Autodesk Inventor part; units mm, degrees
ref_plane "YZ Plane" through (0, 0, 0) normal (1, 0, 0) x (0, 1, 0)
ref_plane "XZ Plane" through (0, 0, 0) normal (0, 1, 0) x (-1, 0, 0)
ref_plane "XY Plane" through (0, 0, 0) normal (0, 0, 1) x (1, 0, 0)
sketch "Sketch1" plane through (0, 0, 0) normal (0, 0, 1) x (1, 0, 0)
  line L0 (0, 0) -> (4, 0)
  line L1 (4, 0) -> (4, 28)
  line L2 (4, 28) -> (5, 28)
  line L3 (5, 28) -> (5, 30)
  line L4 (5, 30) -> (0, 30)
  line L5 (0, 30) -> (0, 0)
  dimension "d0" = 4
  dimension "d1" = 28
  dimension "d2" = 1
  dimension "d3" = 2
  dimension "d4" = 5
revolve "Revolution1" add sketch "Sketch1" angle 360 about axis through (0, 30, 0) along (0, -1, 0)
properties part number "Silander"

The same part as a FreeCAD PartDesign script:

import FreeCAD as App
import Part
import Sketcher
from FreeCAD import Vector
Q = App.Units.Quantity

doc = App.newDocument("Part")
body = doc.addObject("PartDesign::Body", "Body")

# Sketch on XY plane
sketch1 = doc.addObject("Sketcher::SketchObject", "Sketch")
body.addObject(sketch1)
sketch1.AttachmentSupport = (doc.XY_Plane, [""])
sketch1.MapMode = "FlatFace"
sketch1.addGeometry([
    Part.LineSegment(Vector(0, 30, 0), Vector(0, 0, 0)),  # 0
    Part.LineSegment(Vector(0, 0, 0), Vector(4, 0, 0)),  # 1
    Part.LineSegment(Vector(4, 0, 0), Vector(4, 28, 0)),  # 2
    Part.LineSegment(Vector(4, 28, 0), Vector(5, 28, 0)),  # 3
    Part.LineSegment(Vector(5, 28, 0), Vector(5, 30, 0)),  # 4
    Part.LineSegment(Vector(5, 30, 0), Vector(0, 30, 0)),  # 5
], False)
sketch1.addConstraint([
    Sketcher.Constraint("Coincident", 0, 2, 1, 1),
    Sketcher.Constraint("Coincident", 1, 2, 2, 1),
    Sketcher.Constraint("Coincident", 2, 2, 3, 1),
    Sketcher.Constraint("Coincident", 3, 2, 4, 1),
    Sketcher.Constraint("Coincident", 4, 2, 5, 1),
    Sketcher.Constraint("Coincident", 5, 2, 0, 1),
    Sketcher.Constraint("Vertical", 0),
    Sketcher.Constraint("Horizontal", 1),
    Sketcher.Constraint("Vertical", 2),
    Sketcher.Constraint("Horizontal", 3),
    Sketcher.Constraint("Vertical", 4),
    Sketcher.Constraint("Horizontal", 5),
    Sketcher.Constraint("Coincident", 0, 2, -1, 1),
    Sketcher.Constraint("DistanceX", 1, 1, 1, 2, Q("4 mm")),
    Sketcher.Constraint("DistanceX", 3, 1, 3, 2, Q("1 mm")),
    Sketcher.Constraint("DistanceY", 2, 1, 2, 2, Q("28 mm")),
    Sketcher.Constraint("DistanceY", 4, 1, 4, 2, Q("2 mm")),
])
revolution = doc.addObject("PartDesign::Revolution", "Revolution")
body.addObject(revolution)
revolution.Profile = sketch1
revolution.ReferenceAxis = (sketch1, ["V_Axis"])
revolution.Angle = 360

doc.recompute()
